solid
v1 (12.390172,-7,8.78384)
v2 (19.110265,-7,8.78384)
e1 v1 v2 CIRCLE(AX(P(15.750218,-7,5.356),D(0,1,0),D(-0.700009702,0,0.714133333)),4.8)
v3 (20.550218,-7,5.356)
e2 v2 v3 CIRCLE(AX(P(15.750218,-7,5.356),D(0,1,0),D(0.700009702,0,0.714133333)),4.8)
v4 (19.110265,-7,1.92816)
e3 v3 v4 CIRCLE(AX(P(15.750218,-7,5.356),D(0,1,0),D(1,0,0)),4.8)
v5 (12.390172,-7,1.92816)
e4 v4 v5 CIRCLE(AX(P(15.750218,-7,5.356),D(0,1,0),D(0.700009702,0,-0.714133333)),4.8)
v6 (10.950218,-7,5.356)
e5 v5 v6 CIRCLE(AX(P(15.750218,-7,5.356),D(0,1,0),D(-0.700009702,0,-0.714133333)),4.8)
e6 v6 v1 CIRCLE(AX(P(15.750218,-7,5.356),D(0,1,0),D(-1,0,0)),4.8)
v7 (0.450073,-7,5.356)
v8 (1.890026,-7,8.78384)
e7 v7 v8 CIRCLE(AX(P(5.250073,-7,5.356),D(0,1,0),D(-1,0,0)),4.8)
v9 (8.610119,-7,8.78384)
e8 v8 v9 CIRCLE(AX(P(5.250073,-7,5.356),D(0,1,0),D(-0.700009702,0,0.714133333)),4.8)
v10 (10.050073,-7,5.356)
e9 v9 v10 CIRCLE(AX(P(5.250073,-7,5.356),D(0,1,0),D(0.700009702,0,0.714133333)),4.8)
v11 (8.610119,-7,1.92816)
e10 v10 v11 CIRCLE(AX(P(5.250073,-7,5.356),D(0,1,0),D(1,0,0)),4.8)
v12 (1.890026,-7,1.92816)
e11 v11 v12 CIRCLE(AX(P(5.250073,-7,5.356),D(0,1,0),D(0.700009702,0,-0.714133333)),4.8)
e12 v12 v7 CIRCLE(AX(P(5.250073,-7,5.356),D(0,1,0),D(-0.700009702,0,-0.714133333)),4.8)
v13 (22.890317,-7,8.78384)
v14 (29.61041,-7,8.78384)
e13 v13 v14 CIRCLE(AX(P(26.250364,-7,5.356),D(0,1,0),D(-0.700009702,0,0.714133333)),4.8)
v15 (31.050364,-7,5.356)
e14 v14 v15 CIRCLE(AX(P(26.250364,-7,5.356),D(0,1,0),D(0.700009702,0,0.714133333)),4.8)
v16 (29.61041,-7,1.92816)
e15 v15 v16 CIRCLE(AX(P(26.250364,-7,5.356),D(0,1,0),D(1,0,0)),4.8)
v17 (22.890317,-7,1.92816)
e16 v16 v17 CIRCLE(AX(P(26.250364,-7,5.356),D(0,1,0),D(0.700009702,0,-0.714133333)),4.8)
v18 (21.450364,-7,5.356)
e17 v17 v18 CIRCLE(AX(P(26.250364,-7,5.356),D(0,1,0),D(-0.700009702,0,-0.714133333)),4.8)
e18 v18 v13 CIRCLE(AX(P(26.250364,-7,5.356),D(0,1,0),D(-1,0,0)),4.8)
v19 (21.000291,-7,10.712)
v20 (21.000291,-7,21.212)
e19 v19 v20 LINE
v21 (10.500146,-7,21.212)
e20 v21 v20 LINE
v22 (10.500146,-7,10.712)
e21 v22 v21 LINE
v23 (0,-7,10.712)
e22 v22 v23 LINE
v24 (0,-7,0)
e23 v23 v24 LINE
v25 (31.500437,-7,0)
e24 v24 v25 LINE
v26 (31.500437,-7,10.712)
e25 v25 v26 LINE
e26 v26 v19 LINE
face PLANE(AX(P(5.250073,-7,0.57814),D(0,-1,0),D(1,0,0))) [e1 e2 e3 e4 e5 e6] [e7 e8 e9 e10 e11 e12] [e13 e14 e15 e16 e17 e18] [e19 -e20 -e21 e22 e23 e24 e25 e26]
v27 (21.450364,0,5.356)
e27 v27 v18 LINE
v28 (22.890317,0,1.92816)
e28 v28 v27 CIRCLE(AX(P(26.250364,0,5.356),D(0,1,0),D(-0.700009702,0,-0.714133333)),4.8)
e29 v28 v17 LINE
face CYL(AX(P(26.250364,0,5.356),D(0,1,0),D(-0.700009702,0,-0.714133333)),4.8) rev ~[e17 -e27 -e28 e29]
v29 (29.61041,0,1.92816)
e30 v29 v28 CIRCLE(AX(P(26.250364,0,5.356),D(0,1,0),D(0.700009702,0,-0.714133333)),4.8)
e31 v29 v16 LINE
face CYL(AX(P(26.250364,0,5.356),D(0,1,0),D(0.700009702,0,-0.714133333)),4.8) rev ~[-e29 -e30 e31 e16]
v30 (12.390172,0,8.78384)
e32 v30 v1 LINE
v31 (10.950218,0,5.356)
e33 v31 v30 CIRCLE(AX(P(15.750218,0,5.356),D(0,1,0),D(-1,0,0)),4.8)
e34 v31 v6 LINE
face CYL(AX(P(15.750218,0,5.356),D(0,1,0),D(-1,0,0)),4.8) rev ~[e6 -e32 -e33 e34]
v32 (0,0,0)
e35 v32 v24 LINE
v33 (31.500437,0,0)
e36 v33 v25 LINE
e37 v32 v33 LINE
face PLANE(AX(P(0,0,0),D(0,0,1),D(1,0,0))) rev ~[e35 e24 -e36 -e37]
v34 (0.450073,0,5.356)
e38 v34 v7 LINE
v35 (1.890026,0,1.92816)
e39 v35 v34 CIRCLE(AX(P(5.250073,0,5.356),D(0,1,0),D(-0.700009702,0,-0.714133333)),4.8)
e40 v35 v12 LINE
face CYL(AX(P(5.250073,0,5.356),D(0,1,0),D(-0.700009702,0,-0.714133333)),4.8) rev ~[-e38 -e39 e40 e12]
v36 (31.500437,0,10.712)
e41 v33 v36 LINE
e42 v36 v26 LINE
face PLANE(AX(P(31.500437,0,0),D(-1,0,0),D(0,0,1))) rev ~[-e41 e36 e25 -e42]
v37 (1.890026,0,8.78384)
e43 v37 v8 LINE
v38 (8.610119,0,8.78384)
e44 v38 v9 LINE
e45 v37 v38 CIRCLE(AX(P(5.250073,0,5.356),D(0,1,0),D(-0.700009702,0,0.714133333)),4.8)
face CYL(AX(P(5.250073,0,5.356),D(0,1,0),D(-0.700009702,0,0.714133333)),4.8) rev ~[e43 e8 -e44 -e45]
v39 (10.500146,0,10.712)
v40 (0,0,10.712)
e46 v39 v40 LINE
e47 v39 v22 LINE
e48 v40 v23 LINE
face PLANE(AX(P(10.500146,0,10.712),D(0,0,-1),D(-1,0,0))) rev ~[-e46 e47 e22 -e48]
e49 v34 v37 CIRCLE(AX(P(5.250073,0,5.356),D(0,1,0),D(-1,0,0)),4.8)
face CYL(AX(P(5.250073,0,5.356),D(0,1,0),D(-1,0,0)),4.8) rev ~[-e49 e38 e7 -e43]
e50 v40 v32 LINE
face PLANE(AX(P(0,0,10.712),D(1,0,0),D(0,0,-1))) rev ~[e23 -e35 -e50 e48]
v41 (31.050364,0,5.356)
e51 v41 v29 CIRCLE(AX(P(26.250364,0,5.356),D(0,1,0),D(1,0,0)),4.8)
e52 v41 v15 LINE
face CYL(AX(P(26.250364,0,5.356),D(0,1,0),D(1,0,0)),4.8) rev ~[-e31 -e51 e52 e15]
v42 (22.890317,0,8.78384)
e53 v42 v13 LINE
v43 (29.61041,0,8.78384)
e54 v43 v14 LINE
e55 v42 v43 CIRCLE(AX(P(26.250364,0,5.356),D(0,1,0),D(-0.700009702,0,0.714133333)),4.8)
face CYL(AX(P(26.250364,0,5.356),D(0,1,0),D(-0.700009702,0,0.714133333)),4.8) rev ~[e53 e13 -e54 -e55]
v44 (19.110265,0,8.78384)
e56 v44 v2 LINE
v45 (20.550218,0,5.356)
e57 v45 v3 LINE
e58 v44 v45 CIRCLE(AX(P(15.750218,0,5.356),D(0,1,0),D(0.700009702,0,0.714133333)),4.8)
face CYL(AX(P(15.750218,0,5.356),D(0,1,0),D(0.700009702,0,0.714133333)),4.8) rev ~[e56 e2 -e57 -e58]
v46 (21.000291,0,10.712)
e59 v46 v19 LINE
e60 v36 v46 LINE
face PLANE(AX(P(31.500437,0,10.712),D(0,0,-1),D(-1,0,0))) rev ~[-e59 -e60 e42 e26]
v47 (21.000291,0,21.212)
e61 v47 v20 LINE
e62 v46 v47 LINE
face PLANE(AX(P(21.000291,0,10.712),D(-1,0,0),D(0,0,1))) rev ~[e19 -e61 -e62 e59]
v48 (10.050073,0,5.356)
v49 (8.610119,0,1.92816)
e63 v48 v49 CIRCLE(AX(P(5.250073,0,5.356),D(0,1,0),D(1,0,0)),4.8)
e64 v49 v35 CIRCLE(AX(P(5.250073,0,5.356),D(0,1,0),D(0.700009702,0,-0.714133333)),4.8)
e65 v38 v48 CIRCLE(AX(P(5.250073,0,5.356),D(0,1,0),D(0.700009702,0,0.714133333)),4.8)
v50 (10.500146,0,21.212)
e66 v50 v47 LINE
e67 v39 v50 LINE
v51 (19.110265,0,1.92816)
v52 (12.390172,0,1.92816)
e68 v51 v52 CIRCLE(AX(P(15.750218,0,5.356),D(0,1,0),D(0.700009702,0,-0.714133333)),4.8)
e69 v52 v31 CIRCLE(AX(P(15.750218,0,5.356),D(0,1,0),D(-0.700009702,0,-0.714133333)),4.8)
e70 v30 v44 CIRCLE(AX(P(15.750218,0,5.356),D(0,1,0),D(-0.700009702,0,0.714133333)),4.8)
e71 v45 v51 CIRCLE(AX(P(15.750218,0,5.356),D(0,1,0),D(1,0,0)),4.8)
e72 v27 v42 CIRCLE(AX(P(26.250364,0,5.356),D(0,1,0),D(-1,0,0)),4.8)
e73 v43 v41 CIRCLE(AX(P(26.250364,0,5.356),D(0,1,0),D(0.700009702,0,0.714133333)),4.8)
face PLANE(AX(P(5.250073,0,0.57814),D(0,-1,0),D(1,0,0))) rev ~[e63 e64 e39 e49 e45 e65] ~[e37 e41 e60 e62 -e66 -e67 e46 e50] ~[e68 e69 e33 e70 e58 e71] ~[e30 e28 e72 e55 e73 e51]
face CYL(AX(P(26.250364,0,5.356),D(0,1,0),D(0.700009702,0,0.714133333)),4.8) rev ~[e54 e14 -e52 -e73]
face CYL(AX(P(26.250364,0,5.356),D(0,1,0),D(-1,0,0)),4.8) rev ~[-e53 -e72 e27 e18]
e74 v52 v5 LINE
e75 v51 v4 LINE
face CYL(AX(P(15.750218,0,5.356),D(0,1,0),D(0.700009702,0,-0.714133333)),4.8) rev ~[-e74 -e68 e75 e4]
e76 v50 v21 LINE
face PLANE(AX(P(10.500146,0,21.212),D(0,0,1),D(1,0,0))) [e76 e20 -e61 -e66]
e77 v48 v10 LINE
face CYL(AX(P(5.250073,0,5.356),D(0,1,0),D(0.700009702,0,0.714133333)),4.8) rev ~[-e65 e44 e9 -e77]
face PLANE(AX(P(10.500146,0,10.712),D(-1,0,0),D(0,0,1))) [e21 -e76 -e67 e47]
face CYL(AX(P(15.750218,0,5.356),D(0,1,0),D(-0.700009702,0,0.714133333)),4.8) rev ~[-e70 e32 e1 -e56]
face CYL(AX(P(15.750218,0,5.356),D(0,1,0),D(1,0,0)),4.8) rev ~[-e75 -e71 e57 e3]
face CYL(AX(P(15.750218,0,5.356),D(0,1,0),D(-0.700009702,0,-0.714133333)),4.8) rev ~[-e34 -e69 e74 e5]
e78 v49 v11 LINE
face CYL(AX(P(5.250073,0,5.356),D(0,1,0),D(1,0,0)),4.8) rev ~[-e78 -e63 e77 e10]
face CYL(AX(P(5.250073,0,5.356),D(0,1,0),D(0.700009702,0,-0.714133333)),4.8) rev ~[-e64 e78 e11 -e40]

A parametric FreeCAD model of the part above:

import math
import FreeCAD as App
import Part
import Sketcher
Q = App.Units.Quantity


def add_polygon(sketch, points):
    """Adds a closed chain of lines whose ends are joined by coincident constraints."""
    first, n = sketch.GeometryCount, len(points)
    for a, b in zip(points, points[1:] + points[:1]):
        sketch.addGeometry(Part.LineSegment(App.Vector(*a, 0), App.Vector(*b, 0)), False)
    for i in range(n):
        sketch.addConstraint(Sketcher.Constraint("Coincident", first + i, 2, first + (i + 1) % n, 1))

doc = App.newDocument("Part")
body = doc.addObject("PartDesign::Body", "Body")

# Sketch on XZ plane
sketch1 = body.newObject("Sketcher::SketchObject", "Sketch")
sketch1.AttachmentSupport = (doc.getObject("XZ_Plane"), [""])
sketch1.MapMode = "FlatFace"
add_polygon(sketch1, [(0, 0), (31.5, 0), (31.5, 10.7), (21, 10.7), (21, 21.2), (10.5, 21.2), (10.5, 10.7), (0, 10.7)])  # lines 0-7
sketch1.addGeometry(Part.ArcOfCircle(Part.Circle(App.Vector(26.3, 5.4, 0), App.Vector(0, 0, 1), 4.8), math.radians(0), math.radians(46)), False)  # 8
sketch1.addGeometry(Part.ArcOfCircle(Part.Circle(App.Vector(26.3, 5.4, 0), App.Vector(0, 0, 1), 4.8), math.radians(-46), math.radians(0)), False)  # 9
sketch1.addGeometry(Part.ArcOfCircle(Part.Circle(App.Vector(26.3, 5.4, 0), App.Vector(0, 0, 1), 4.8), math.radians(-134), math.radians(-46)), False)  # 10
sketch1.addGeometry(Part.ArcOfCircle(Part.Circle(App.Vector(26.3, 5.4, 0), App.Vector(0, 0, 1), 4.8), math.radians(180), math.radians(226)), False)  # 11
sketch1.addGeometry(Part.ArcOfCircle(Part.Circle(App.Vector(26.3, 5.4, 0), App.Vector(0, 0, 1), 4.8), math.radians(134), math.radians(180)), False)  # 12
sketch1.addGeometry(Part.ArcOfCircle(Part.Circle(App.Vector(26.3, 5.4, 0), App.Vector(0, 0, 1), 4.8), math.radians(46), math.radians(134)), False)  # 13
sketch1.addGeometry(Part.ArcOfCircle(Part.Circle(App.Vector(15.8, 5.4, 0), App.Vector(0, 0, 1), 4.8), math.radians(0), math.radians(46)), False)  # 14
sketch1.addGeometry(Part.ArcOfCircle(Part.Circle(App.Vector(15.8, 5.4, 0), App.Vector(0, 0, 1), 4.8), math.radians(-46), math.radians(0)), False)  # 15
sketch1.addGeometry(Part.ArcOfCircle(Part.Circle(App.Vector(15.8, 5.4, 0), App.Vector(0, 0, 1), 4.8), math.radians(-134), math.radians(-46)), False)  # 16
sketch1.addGeometry(Part.ArcOfCircle(Part.Circle(App.Vector(15.8, 5.4, 0), App.Vector(0, 0, 1), 4.8), math.radians(180), math.radians(226)), False)  # 17
sketch1.addGeometry(Part.ArcOfCircle(Part.Circle(App.Vector(15.8, 5.4, 0), App.Vector(0, 0, 1), 4.8), math.radians(134), math.radians(180)), False)  # 18
sketch1.addGeometry(Part.ArcOfCircle(Part.Circle(App.Vector(15.8, 5.4, 0), App.Vector(0, 0, 1), 4.8), math.radians(46), math.radians(134)), False)  # 19
sketch1.addGeometry(Part.ArcOfCircle(Part.Circle(App.Vector(5.3, 5.4, 0), App.Vector(0, 0, 1), 4.8), math.radians(0), math.radians(46)), False)  # 20
sketch1.addGeometry(Part.ArcOfCircle(Part.Circle(App.Vector(5.3, 5.4, 0), App.Vector(0, 0, 1), 4.8), math.radians(-46), math.radians(0)), False)  # 21
sketch1.addGeometry(Part.ArcOfCircle(Part.Circle(App.Vector(5.3, 5.4, 0), App.Vector(0, 0, 1), 4.8), math.radians(-134), math.radians(-46)), False)  # 22
sketch1.addGeometry(Part.ArcOfCircle(Part.Circle(App.Vector(5.3, 5.4, 0), App.Vector(0, 0, 1), 4.8), math.radians(180), math.radians(226)), False)  # 23
sketch1.addGeometry(Part.ArcOfCircle(Part.Circle(App.Vector(5.3, 5.4, 0), App.Vector(0, 0, 1), 4.8), math.radians(134), math.radians(180)), False)  # 24
sketch1.addGeometry(Part.ArcOfCircle(Part.Circle(App.Vector(5.3, 5.4, 0), App.Vector(0, 0, 1), 4.8), math.radians(46), math.radians(134)), False)  # 25
sketch1.addConstraint(Sketcher.Constraint("Tangent", 8, 1, 9, 2))
sketch1.addConstraint(Sketcher.Constraint("Tangent", 9, 1, 10, 2))
sketch1.addConstraint(Sketcher.Constraint("Tangent", 10, 1, 11, 2))
sketch1.addConstraint(Sketcher.Constraint("Tangent", 11, 1, 12, 2))
sketch1.addConstraint(Sketcher.Constraint("Tangent", 12, 1, 13, 2))
sketch1.addConstraint(Sketcher.Constraint("Tangent", 13, 1, 8, 2))
sketch1.addConstraint(Sketcher.Constraint("Tangent", 14, 1, 15, 2))
sketch1.addConstraint(Sketcher.Constraint("Tangent", 15, 1, 16, 2))
sketch1.addConstraint(Sketcher.Constraint("Tangent", 16, 1, 17, 2))
sketch1.addConstraint(Sketcher.Constraint("Tangent", 17, 1, 18, 2))
sketch1.addConstraint(Sketcher.Constraint("Tangent", 18, 1, 19, 2))
sketch1.addConstraint(Sketcher.Constraint("Tangent", 19, 1, 14, 2))
sketch1.addConstraint(Sketcher.Constraint("Tangent", 20, 1, 21, 2))
sketch1.addConstraint(Sketcher.Constraint("Tangent", 21, 1, 22, 2))
sketch1.addConstraint(Sketcher.Constraint("Tangent", 22, 1, 23, 2))
sketch1.addConstraint(Sketcher.Constraint("Tangent", 23, 1, 24, 2))
sketch1.addConstraint(Sketcher.Constraint("Tangent", 24, 1, 25, 2))
sketch1.addConstraint(Sketcher.Constraint("Tangent", 25, 1, 20, 2))
sketch1.addConstraint(Sketcher.Constraint("Horizontal", 0))
sketch1.addConstraint(Sketcher.Constraint("Vertical", 1))
sketch1.addConstraint(Sketcher.Constraint("Horizontal", 2))
sketch1.addConstraint(Sketcher.Constraint("Vertical", 3))
sketch1.addConstraint(Sketcher.Constraint("Horizontal", 4))
sketch1.addConstraint(Sketcher.Constraint("Vertical", 5))
sketch1.addConstraint(Sketcher.Constraint("Horizontal", 6))
sketch1.addConstraint(Sketcher.Constraint("Vertical", 7))
sketch1.addConstraint(Sketcher.Constraint("Coincident", 7, 2, -1, 1))
sketch1.addConstraint(Sketcher.Constraint("Coincident", 10, 3, 8, 3))
sketch1.addConstraint(Sketcher.Constraint("Coincident", 16, 3, 14, 3))
sketch1.addConstraint(Sketcher.Constraint("Coincident", 22, 3, 20, 3))
sketch1.addConstraint(Sketcher.Constraint("Equal", 10, 11))
sketch1.addConstraint(Sketcher.Constraint("Equal", 13, 14))
sketch1.addConstraint(Sketcher.Constraint("Equal", 16, 17))
sketch1.addConstraint(Sketcher.Constraint("Equal", 19, 20))
sketch1.addConstraint(Sketcher.Constraint("Equal", 22, 23))
sketch1.addConstraint(Sketcher.Constraint("Horizontal", 13, 3, 14, 3))
sketch1.addConstraint(Sketcher.Constraint("Horizontal", 19, 3, 20, 3))
sketch1.addConstraint(Sketcher.Constraint("Horizontal", 2, 2, 5, 2))
sketch1.addConstraint(Sketcher.Constraint("Horizontal", 25, 3, 8, 1))
sketch1.addConstraint(Sketcher.Constraint("Horizontal", 9, 1, 10, 1))
sketch1.addConstraint(Sketcher.Constraint("Horizontal", 8, 1, 11, 1))
sketch1.addConstraint(Sketcher.Constraint("Horizontal", 12, 1, 13, 1))
sketch1.addConstraint(Sketcher.Constraint("Horizontal", 11, 1, 14, 1))
sketch1.addConstraint(Sketcher.Constraint("Horizontal", 10, 1, 15, 1))
sketch1.addConstraint(Sketcher.Constraint("Horizontal", 15, 1, 16, 1))
sketch1.addConstraint(Sketcher.Constraint("Horizontal", 14, 1, 17, 1))
sketch1.addConstraint(Sketcher.Constraint("Horizontal", 13, 1, 18, 1))
sketch1.addConstraint(Sketcher.Constraint("Horizontal", 18, 1, 19, 1))
sketch1.addConstraint(Sketcher.Constraint("Horizontal", 17, 1, 20, 1))
sketch1.addConstraint(Sketcher.Constraint("Horizontal", 16, 1, 21, 1))
sketch1.addConstraint(Sketcher.Constraint("Horizontal", 21, 1, 22, 1))
sketch1.addConstraint(Sketcher.Constraint("Horizontal", 20, 1, 23, 1))
sketch1.addConstraint(Sketcher.Constraint("Horizontal", 19, 1, 24, 1))
sketch1.addConstraint(Sketcher.Constraint("Horizontal", 24, 1, 25, 1))
sketch1.addConstraint(Sketcher.Constraint("Vertical", 10, 1, 12, 1))
sketch1.addConstraint(Sketcher.Constraint("Equal", 2, 4))
sketch1.addConstraint(Sketcher.Constraint("Equal", 4, 6))
sketch1.addConstraint(Sketcher.Constraint("Radius", 8, Q("4.8 mm")))
sketch1.addConstraint(Sketcher.Constraint("DistanceY", 3, 1, 3, 2, Q("10.5 mm")))
sketch1.addConstraint(Sketcher.Constraint("DistanceY", 1, 1, 1, 2, Q("10.712 mm")))
sketch1.addConstraint(Sketcher.Constraint("DistanceY", -1, 1, 8, 3, Q("5.356 mm")))
sketch1.addConstraint(Sketcher.Constraint("DistanceX", 14, 1, 12, 1, Q("2.340099 mm")))
sketch1.addConstraint(Sketcher.Constraint("DistanceX", 20, 1, 16, 1, Q("2.340099 mm")))
sketch1.addConstraint(Sketcher.Constraint("DistanceX", 0, 1, 0, 2, Q("31.500437 mm")))
sketch1.addConstraint(Sketcher.Constraint("DistanceX", -1, 1, 14, 3, Q("15.750218 mm")))
sketch1.addConstraint(Sketcher.Constraint("DistanceX", -1, 1, 9, 1, Q("29.61041 mm")))
pad1 = body.newObject("PartDesign::Pad", "Pad")
pad1.Profile = sketch1
pad1.Length = 7

doc.recompute()
